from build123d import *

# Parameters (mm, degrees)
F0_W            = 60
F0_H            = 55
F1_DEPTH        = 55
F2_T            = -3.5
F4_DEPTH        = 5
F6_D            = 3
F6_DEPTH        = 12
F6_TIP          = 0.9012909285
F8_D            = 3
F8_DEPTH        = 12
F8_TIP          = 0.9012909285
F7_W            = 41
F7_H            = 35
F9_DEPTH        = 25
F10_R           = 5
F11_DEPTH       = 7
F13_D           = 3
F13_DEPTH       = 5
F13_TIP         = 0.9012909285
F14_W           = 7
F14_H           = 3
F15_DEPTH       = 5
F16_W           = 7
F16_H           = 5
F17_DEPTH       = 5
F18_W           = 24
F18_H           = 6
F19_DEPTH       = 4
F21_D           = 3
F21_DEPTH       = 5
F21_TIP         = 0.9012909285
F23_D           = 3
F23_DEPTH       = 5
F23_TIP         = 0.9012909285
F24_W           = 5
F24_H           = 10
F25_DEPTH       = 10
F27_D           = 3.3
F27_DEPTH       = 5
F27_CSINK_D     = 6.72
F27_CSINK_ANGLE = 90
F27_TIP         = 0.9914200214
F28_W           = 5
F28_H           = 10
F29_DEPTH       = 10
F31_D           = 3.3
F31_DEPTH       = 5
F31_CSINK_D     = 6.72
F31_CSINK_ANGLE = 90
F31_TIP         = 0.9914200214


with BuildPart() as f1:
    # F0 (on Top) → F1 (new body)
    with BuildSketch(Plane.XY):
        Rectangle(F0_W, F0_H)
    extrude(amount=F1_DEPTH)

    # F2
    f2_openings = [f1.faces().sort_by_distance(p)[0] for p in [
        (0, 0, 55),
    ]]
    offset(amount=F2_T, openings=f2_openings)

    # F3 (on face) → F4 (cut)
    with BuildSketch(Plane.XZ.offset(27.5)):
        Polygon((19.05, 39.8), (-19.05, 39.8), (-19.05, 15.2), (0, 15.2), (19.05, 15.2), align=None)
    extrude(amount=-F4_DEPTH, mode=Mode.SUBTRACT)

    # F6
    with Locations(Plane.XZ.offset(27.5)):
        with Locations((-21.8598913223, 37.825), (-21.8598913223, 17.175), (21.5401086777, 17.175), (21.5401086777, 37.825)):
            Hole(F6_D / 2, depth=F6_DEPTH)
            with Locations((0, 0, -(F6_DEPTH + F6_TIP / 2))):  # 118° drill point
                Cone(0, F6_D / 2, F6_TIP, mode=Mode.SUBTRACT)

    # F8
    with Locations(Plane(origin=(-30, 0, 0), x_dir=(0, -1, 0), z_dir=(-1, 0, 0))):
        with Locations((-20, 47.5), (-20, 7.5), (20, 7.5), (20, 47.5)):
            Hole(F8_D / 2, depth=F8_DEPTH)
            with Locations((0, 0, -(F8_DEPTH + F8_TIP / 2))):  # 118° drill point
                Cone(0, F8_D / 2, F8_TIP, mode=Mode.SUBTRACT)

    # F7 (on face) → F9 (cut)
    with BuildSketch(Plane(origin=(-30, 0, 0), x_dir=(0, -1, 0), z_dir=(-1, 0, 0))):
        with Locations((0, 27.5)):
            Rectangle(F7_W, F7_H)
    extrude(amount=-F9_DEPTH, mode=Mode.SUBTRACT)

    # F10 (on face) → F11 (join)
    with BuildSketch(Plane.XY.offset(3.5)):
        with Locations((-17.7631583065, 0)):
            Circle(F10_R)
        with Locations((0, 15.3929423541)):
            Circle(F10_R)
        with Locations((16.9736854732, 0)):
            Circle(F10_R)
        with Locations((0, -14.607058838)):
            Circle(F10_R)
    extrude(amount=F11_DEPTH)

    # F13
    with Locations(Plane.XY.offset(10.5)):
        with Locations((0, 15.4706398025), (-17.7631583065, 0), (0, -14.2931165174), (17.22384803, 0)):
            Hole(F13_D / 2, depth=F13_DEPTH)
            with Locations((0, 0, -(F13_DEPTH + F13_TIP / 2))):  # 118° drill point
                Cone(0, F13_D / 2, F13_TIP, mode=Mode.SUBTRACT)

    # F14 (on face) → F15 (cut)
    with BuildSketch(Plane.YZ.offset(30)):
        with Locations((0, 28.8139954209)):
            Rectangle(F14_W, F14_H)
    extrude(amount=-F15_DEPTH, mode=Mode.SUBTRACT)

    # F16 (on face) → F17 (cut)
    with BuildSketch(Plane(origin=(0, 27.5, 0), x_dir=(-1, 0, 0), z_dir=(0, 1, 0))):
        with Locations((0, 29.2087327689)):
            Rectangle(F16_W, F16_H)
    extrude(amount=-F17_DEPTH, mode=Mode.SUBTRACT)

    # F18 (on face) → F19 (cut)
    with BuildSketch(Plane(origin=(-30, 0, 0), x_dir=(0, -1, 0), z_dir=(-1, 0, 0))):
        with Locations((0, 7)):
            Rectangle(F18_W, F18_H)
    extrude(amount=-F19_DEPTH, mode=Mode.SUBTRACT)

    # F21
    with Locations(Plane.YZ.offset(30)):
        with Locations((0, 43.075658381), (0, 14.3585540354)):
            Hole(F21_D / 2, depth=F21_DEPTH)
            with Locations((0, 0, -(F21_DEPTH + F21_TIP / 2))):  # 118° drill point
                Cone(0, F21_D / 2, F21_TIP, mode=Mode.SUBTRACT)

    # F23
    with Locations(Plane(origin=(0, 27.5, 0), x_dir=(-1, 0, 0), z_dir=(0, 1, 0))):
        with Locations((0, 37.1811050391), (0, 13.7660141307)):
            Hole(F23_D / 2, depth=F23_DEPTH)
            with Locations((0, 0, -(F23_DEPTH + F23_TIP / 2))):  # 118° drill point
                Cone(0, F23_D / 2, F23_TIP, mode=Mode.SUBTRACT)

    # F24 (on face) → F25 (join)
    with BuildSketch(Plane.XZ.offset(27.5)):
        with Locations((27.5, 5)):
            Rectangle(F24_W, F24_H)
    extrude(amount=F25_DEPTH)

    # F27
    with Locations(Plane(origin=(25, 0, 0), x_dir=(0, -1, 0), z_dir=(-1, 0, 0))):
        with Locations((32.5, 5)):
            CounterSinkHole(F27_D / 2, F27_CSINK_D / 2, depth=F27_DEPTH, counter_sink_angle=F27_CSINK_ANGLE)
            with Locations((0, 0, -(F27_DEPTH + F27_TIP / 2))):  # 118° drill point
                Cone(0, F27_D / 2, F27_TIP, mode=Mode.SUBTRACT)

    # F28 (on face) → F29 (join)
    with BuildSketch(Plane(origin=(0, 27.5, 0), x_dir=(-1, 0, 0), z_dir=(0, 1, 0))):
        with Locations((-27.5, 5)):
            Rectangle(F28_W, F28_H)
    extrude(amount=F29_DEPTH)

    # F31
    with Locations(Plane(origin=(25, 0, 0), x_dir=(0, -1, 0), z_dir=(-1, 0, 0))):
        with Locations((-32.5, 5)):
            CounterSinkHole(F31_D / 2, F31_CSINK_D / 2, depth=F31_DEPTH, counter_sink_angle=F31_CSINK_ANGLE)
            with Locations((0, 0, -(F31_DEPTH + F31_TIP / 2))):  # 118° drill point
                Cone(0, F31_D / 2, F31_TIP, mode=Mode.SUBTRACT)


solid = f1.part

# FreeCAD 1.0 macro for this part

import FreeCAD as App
import Part
import Sketcher

V = App.Vector


def faces_at(feature, points):
    """Names of the faces that lie closest to the given points."""
    faces = feature.Shape.Faces
    near = lambda p: min(range(len(faces)), key=lambda i: faces[i].distToShape(Part.Vertex(*p))[0])
    return sorted({f"Face{near(p) + 1}" for p in points})

doc = App.newDocument("Part")
body = doc.addObject("PartDesign::Body", "Body")

# Sketch on XY plane
sketch1 = body.newObject("Sketcher::SketchObject", "Sketch")
sketch1.AttachmentSupport = (doc.getObject("XY_Plane"), [""])
sketch1.MapMode = "FlatFace"
sketch1.addGeometry([
    Part.LineSegment(V(-30, 27.5, 0), V(-30, -27.5, 0)),
    Part.LineSegment(V(-30, -27.5, 0), V(30, -27.5, 0)),
    Part.LineSegment(V(30, -27.5, 0), V(30, 27.5, 0)),
    Part.LineSegment(V(30, 27.5, 0), V(-30, 27.5, 0)),
], False)
sketch1.addConstraint([
    Sketcher.Constraint("Coincident", 0, 2, 1, 1),
    Sketcher.Constraint("Coincident", 1, 2, 2, 1),
    Sketcher.Constraint("Coincident", 2, 2, 3, 1),
    Sketcher.Constraint("Coincident", 3, 2, 0, 1),
    Sketcher.Constraint("Vertical", 0),
    Sketcher.Constraint("Horizontal", 1),
    Sketcher.Constraint("Vertical", 2),
    Sketcher.Constraint("Horizontal", 3),
    Sketcher.Constraint("Symmetric", 0, 2, 2, 2, -1, 1),
    Sketcher.Constraint("DistanceX", 1, 1, 1, 2, 60.0),
    Sketcher.Constraint("DistanceY", 0, 2, 0, 1, 55.0),
])
pad1 = body.newObject("PartDesign::Pad", "Pad")
pad1.Profile = sketch1
pad1.Length = 55
doc.recompute()

thickness = body.newObject("PartDesign::Thickness", "Thickness")
thickness.Base = (pad1, faces_at(pad1, [(0, 0, 55)]))
thickness.Value = 3.5
thickness.Reversed = True
thickness.Join = "Arc"

# Sketch on XZ plane
sketch2 = body.newObject("Sketcher::SketchObject", "Sketch001")
sketch2.AttachmentSupport = (doc.getObject("XZ_Plane"), [""])
sketch2.MapMode = "FlatFace"
sketch2.AttachmentOffset = App.Placement(V(0, 0, 27.5), App.Rotation())
sketch2.addGeometry([
    Part.LineSegment(V(19.05, 39.8, 0), V(-19.05, 39.8, 0)),
    Part.LineSegment(V(-19.05, 39.8, 0), V(-19.05, 15.2, 0)),
    Part.LineSegment(V(-19.05, 15.2, 0), V(19.05, 15.2, 0)),
    Part.LineSegment(V(19.05, 15.2, 0), V(19.05, 39.8, 0)),
], False)
sketch2.addConstraint([
    Sketcher.Constraint("Coincident", 0, 2, 1, 1),
    Sketcher.Constraint("Coincident", 1, 2, 2, 1),
    Sketcher.Constraint("Coincident", 2, 2, 3, 1),
    Sketcher.Constraint("Coincident", 3, 2, 0, 1),
    Sketcher.Constraint("Horizontal", 0),
    Sketcher.Constraint("Vertical", 1),
    Sketcher.Constraint("Horizontal", 2),
    Sketcher.Constraint("Vertical", 3),
    Sketcher.Constraint("DistanceX", 0, 2, 0, 1, 38.1),
    Sketcher.Constraint("DistanceY", 1, 2, 1, 1, 24.6),
    Sketcher.Constraint("DistanceY", -1, 1, 0, 2, 39.8),
    Sketcher.Constraint("DistanceX", 0, 2, -1, 1, 19.05),
])
pocket1 = body.newObject("PartDesign::Pocket", "Pocket")
pocket1.Profile = sketch2
pocket1.Length = 5

# Sketch on XZ plane
sketch3 = body.newObject("Sketcher::SketchObject", "Sketch002")
sketch3.AttachmentSupport = (doc.getObject("XZ_Plane"), [""])
sketch3.MapMode = "FlatFace"
sketch3.AttachmentOffset = App.Placement(V(0, 0, 27.5), App.Rotation())
sketch3.addGeometry([
    Part.Circle(V(-21.859891, 37.825, 0), V(0, 0, 1), 1.5),
    Part.Circle(V(-21.859891, 17.175, 0), V(0, 0, 1), 1.5),
    Part.Circle(V(21.540109, 17.175, 0), V(0, 0, 1), 1.5),
    Part.Circle(V(21.540109, 37.825, 0), V(0, 0, 1), 1.5),
], False)
sketch3.addConstraint([
    Sketcher.Constraint("Equal", 0, 1),
    Sketcher.Constraint("Equal", 1, 2),
    Sketcher.Constraint("Equal", 2, 3),
    Sketcher.Constraint("Horizontal", 1, 3, 2, 3),
    Sketcher.Constraint("Horizontal", 0, 3, 3, 3),
    Sketcher.Constraint("Vertical", 0, 3, 1, 3),
    Sketcher.Constraint("Vertical", 2, 3, 3, 3),
    Sketcher.Constraint("Diameter", 0, 3.0),
    Sketcher.Constraint("DistanceX", 1, 3, 2, 3, 43.4),
    Sketcher.Constraint("DistanceY", 1, 3, 0, 3, 20.65),
    Sketcher.Constraint("DistanceY", -1, 1, 0, 3, 37.825),
    Sketcher.Constraint("DistanceX", 0, 3, -1, 1, 21.859891),
])
doc.recompute()
hole = body.newObject("PartDesign::Hole", "Hole")
hole.Profile = sketch3
hole.ThreadType = "None"
hole.Diameter = 3
hole.DepthType = "Dimension"
hole.Depth = 12
hole.DrillPoint = "Angled"
hole.DrillPointAngle = 118

# Sketch on YZ plane
sketch4 = body.newObject("Sketcher::SketchObject", "Sketch003")
sketch4.AttachmentSupport = (doc.getObject("YZ_Plane"), [""])
sketch4.MapMode = "FlatFace"
sketch4.AttachmentOffset = App.Placement(V(0, 0, -30), App.Rotation())
sketch4.addGeometry([
    Part.Circle(V(20, 47.5, 0), V(0, 0, 1), 1.5),
    Part.Circle(V(20, 7.5, 0), V(0, 0, 1), 1.5),
    Part.Circle(V(-20, 7.5, 0), V(0, 0, 1), 1.5),
    Part.Circle(V(-20, 47.5, 0), V(0, 0, 1), 1.5),
], False)
sketch4.addConstraint([
    Sketcher.Constraint("Equal", 0, 1),
    Sketcher.Constraint("Equal", 1, 2),
    Sketcher.Constraint("Equal", 2, 3),
    Sketcher.Constraint("Symmetric", 1, 3, 2, 3, -2),
    Sketcher.Constraint("Symmetric", 0, 3, 3, 3, -2),
    Sketcher.Constraint("Vertical", 0, 3, 1, 3),
    Sketcher.Constraint("Diameter", 0, 3.0),
    Sketcher.Constraint("DistanceX", -1, 1, 0, 3, 20.0),
    Sketcher.Constraint("DistanceY", 1, 3, 0, 3, 40.0),
    Sketcher.Constraint("DistanceY", -1, 1, 0, 3, 47.5),
])
doc.recompute()
hole2 = body.newObject("PartDesign::Hole", "Hole001")
hole2.Profile = sketch4
hole2.ThreadType = "None"
hole2.Diameter = 3
hole2.DepthType = "Dimension"
hole2.Depth = 12
hole2.DrillPoint = "Angled"
hole2.DrillPointAngle = 118
hole2.Reversed = True

# Sketch on YZ plane
sketch5 = body.newObject("Sketcher::SketchObject", "Sketch004")
sketch5.AttachmentSupport = (doc.getObject("YZ_Plane"), [""])
sketch5.MapMode = "FlatFace"
sketch5.AttachmentOffset = App.Placement(V(0, 0, -30), App.Rotation())
sketch5.addGeometry([
    Part.LineSegment(V(20.5, 45, 0), V(20.5, 10, 0)),
    Part.LineSegment(V(20.5, 10, 0), V(-20.5, 10, 0)),
    Part.LineSegment(V(-20.5, 10, 0), V(-20.5, 45, 0)),
    Part.LineSegment(V(-20.5, 45, 0), V(20.5, 45, 0)),
], False)
sketch5.addConstraint([
    Sketcher.Constraint("Coincident", 0, 2, 1, 1),
    Sketcher.Constraint("Coincident", 1, 2, 2, 1),
    Sketcher.Constraint("Coincident", 2, 2, 3, 1),
    Sketcher.Constraint("Coincident", 3, 2, 0, 1),
    Sketcher.Constraint("Vertical", 0),
    Sketcher.Constraint("Horizontal", 1),
    Sketcher.Constraint("Vertical", 2),
    Sketcher.Constraint("Horizontal", 3),
    Sketcher.Constraint("DistanceX", 1, 2, 1, 1, 41.0),
    Sketcher.Constraint("DistanceY", 0, 2, 0, 1, 35.0),
    Sketcher.Constraint("DistanceY", -1, 1, 0, 2, 10.0),
    Sketcher.Constraint("DistanceX", -1, 1, 0, 2, 20.5),
])
pocket2 = body.newObject("PartDesign::Pocket", "Pocket001")
pocket2.Profile = sketch5
pocket2.Length = 25
pocket2.Reversed = True

# Sketch on XY plane
sketch6 = body.newObject("Sketcher::SketchObject", "Sketch005")
sketch6.AttachmentSupport = (doc.getObject("XY_Plane"), [""])
sketch6.MapMode = "FlatFace"
sketch6.AttachmentOffset = App.Placement(V(0, 0, 3.5), App.Rotation())
sketch6.addGeometry([
    Part.Circle(V(-17.763158, 0, 0), V(0, 0, 1), 5),
    Part.Circle(V(0, 15.392942, 0), V(0, 0, 1), 5),
    Part.Circle(V(16.973685, 0, 0), V(0, 0, 1), 5),
    Part.Circle(V(0, -14.607059, 0), V(0, 0, 1), 5),
], False)
sketch6.addConstraint([
    Sketcher.Constraint("Equal", 0, 1),
    Sketcher.Constraint("Equal", 1, 2),
    Sketcher.Constraint("Equal", 2, 3),
    Sketcher.Constraint("PointOnObject", 0, 3, -1),
    Sketcher.Constraint("PointOnObject", 1, 3, -2),
    Sketcher.Constraint("PointOnObject", 2, 3, -1),
    Sketcher.Constraint("PointOnObject", 3, 3, -2),
    Sketcher.Constraint("Diameter", 0, 10.0),
    Sketcher.Constraint("DistanceY", 3, 3, 1, 3, 30.000001),
    Sketcher.Constraint("DistanceX", 0, 3, -1, 1, 17.763158),
    Sketcher.Constraint("DistanceY", 3, 3, -1, 1, 14.607059),
    Sketcher.Constraint("DistanceX", -1, 1, 2, 3, 16.973685),
])
pad2 = body.newObject("PartDesign::Pad", "Pad001")
pad2.Profile = sketch6
pad2.Length = 7

# Sketch on XY plane
sketch7 = body.newObject("Sketcher::SketchObject", "Sketch006")
sketch7.AttachmentSupport = (doc.getObject("XY_Plane"), [""])
sketch7.MapMode = "FlatFace"
sketch7.AttachmentOffset = App.Placement(V(0, 0, 10.5), App.Rotation())
sketch7.addGeometry([
    Part.Circle(V(0, 15.47064, 0), V(0, 0, 1), 1.5),
    Part.Circle(V(-17.763158, 0, 0), V(0, 0, 1), 1.5),
    Part.Circle(V(0, -14.293117, 0), V(0, 0, 1), 1.5),
    Part.Circle(V(17.223848, 0, 0), V(0, 0, 1), 1.5),
], False)
sketch7.addConstraint([
    Sketcher.Constraint("Equal", 0, 1),
    Sketcher.Constraint("Equal", 1, 2),
    Sketcher.Constraint("Equal", 2, 3),
    Sketcher.Constraint("PointOnObject", 0, 3, -2),
    Sketcher.Constraint("PointOnObject", 1, 3, -1),
    Sketcher.Constraint("PointOnObject", 2, 3, -2),
    Sketcher.Constraint("PointOnObject", 3, 3, -1),
    Sketcher.Constraint("Diameter", 0, 3.0),
    Sketcher.Constraint("DistanceY", -1, 1, 0, 3, 15.47064),
    Sketcher.Constraint("DistanceX", 1, 3, -1, 1, 17.763158),
    Sketcher.Constraint("DistanceX", -1, 1, 3, 3, 17.223848),
    Sketcher.Constraint("DistanceY", 2, 3, -1, 1, 14.293117),
])
doc.recompute()
hole3 = body.newObject("PartDesign::Hole", "Hole002")
hole3.Profile = sketch7
hole3.ThreadType = "None"
hole3.Diameter = 3
hole3.DepthType = "Dimension"
hole3.Depth = 5
hole3.DrillPoint = "Angled"
hole3.DrillPointAngle = 118

# Sketch on YZ plane
sketch8 = body.newObject("Sketcher::SketchObject", "Sketch007")
sketch8.AttachmentSupport = (doc.getObject("YZ_Plane"), [""])
sketch8.MapMode = "FlatFace"
sketch8.AttachmentOffset = App.Placement(V(0, 0, 30), App.Rotation())
sketch8.addGeometry([
    Part.LineSegment(V(-3.5, 30.313995, 0), V(-3.5, 27.313995, 0)),
    Part.LineSegment(V(-3.5, 27.313995, 0), V(3.5, 27.313995, 0)),
    Part.LineSegment(V(3.5, 27.313995, 0), V(3.5, 30.313995, 0)),
    Part.LineSegment(V(3.5, 30.313995, 0), V(-3.5, 30.313995, 0)),
], False)
sketch8.addConstraint([
    Sketcher.Constraint("Coincident", 0, 2, 1, 1),
    Sketcher.Constraint("Coincident", 1, 2, 2, 1),
    Sketcher.Constraint("Coincident", 2, 2, 3, 1),
    Sketcher.Constraint("Coincident", 3, 2, 0, 1),
    Sketcher.Constraint("Vertical", 0),
    Sketcher.Constraint("Horizontal", 1),
    Sketcher.Constraint("Vertical", 2),
    Sketcher.Constraint("Horizontal", 3),
    Sketcher.Constraint("DistanceX", 1, 1, 1, 2, 7.0),
    Sketcher.Constraint("DistanceY", 0, 2, 0, 1, 3.0),
    Sketcher.Constraint("DistanceX", 0, 2, -1, 1, 3.5),
    Sketcher.Constraint("DistanceY", -1, 1, 0, 2, 27.313995),
])
pocket3 = body.newObject("PartDesign::Pocket", "Pocket002")
pocket3.Profile = sketch8
pocket3.Length = 5

# Sketch on XZ plane
sketch9 = body.newObject("Sketcher::SketchObject", "Sketch008")
sketch9.AttachmentSupport = (doc.getObject("XZ_Plane"), [""])
sketch9.MapMode = "FlatFace"
sketch9.AttachmentOffset = App.Placement(V(0, 0, -27.5), App.Rotation())
sketch9.addGeometry([
    Part.LineSegment(V(3.5, 31.708733, 0), V(3.5, 26.708733, 0)),
    Part.LineSegment(V(3.5, 26.708733, 0), V(-3.5, 26.708733, 0)),
    Part.LineSegment(V(-3.5, 26.708733, 0), V(-3.5, 31.708733, 0)),
    Part.LineSegment(V(-3.5, 31.708733, 0), V(3.5, 31.708733, 0)),
], False)
sketch9.addConstraint([
    Sketcher.Constraint("Coincident", 0, 2, 1, 1),
    Sketcher.Constraint("Coincident", 1, 2, 2, 1),
    Sketcher.Constraint("Coincident", 2, 2, 3, 1),
    Sketcher.Constraint("Coincident", 3, 2, 0, 1),
    Sketcher.Constraint("Vertical", 0),
    Sketcher.Constraint("Horizontal", 1),
    Sketcher.Constraint("Vertical", 2),
    Sketcher.Constraint("Horizontal", 3),
    Sketcher.Constraint("DistanceX", 1, 2, 1, 1, 7.0),
    Sketcher.Constraint("DistanceY", 0, 2, 0, 1, 5.0),
    Sketcher.Constraint("DistanceX", -1, 1, 0, 2, 3.5),
    Sketcher.Constraint("DistanceY", -1, 1, 0, 2, 26.708733),
])
pocket4 = body.newObject("PartDesign::Pocket", "Pocket003")
pocket4.Profile = sketch9
pocket4.Length = 5
pocket4.Reversed = True

# Sketch on YZ plane
sketch10 = body.newObject("Sketcher::SketchObject", "Sketch009")
sketch10.AttachmentSupport = (doc.getObject("YZ_Plane"), [""])
sketch10.MapMode = "FlatFace"
sketch10.AttachmentOffset = App.Placement(V(0, 0, -30), App.Rotation())
sketch10.addGeometry([
    Part.LineSegment(V(12, 10, 0), V(12, 4, 0)),
    Part.LineSegment(V(12, 4, 0), V(-12, 4, 0)),
    Part.LineSegment(V(-12, 4, 0), V(-12, 10, 0)),
    Part.LineSegment(V(-12, 10, 0), V(12, 10, 0)),
], False)
sketch10.addConstraint([
    Sketcher.Constraint("Coincident", 0, 2, 1, 1),
    Sketcher.Constraint("Coincident", 1, 2, 2, 1),
    Sketcher.Constraint("Coincident", 2, 2, 3, 1),
    Sketcher.Constraint("Coincident", 3, 2, 0, 1),
    Sketcher.Constraint("Vertical", 0),
    Sketcher.Constraint("Horizontal", 1),
    Sketcher.Constraint("Vertical", 2),
    Sketcher.Constraint("Horizontal", 3),
    Sketcher.Constraint("DistanceX", 1, 2, 1, 1, 24.0),
    Sketcher.Constraint("DistanceY", 0, 2, 0, 1, 6.0),
    Sketcher.Constraint("DistanceX", -1, 1, 0, 2, 12.0),
    Sketcher.Constraint("DistanceY", -1, 1, 0, 2, 4.0),
])
pocket5 = body.newObject("PartDesign::Pocket", "Pocket004")
pocket5.Profile = sketch10
pocket5.Length = 4
pocket5.Reversed = True

# Sketch on YZ plane
sketch11 = body.newObject("Sketcher::SketchObject", "Sketch010")
sketch11.AttachmentSupport = (doc.getObject("YZ_Plane"), [""])
sketch11.MapMode = "FlatFace"
sketch11.AttachmentOffset = App.Placement(V(0, 0, 30), App.Rotation())
sketch11.addGeometry([
    Part.Circle(V(0, 43.075658, 0), V(0, 0, 1), 1.5),
    Part.Circle(V(0, 14.358554, 0), V(0, 0, 1), 1.5),
], False)
sketch11.addConstraint([
    Sketcher.Constraint("Equal", 0, 1),
    Sketcher.Constraint("PointOnObject", 0, 3, -2),
    Sketcher.Constraint("PointOnObject", 1, 3, -2),
    Sketcher.Constraint("Diameter", 0, 3.0),
    Sketcher.Constraint("DistanceY", -1, 1, 0, 3, 43.075658),
    Sketcher.Constraint("DistanceY", -1, 1, 1, 3, 14.358554),
])
doc.recompute()
hole4 = body.newObject("PartDesign::Hole", "Hole003")
hole4.Profile = sketch11
hole4.ThreadType = "None"
hole4.Diameter = 3
hole4.DepthType = "Dimension"
hole4.Depth = 5
hole4.DrillPoint = "Angled"
hole4.DrillPointAngle = 118

# Sketch on XZ plane
sketch12 = body.newObject("Sketcher::SketchObject", "Sketch011")
sketch12.AttachmentSupport = (doc.getObject("XZ_Plane"), [""])
sketch12.MapMode = "FlatFace"
sketch12.AttachmentOffset = App.Placement(V(0, 0, -27.5), App.Rotation())
sketch12.addGeometry([
    Part.Circle(V(0, 37.181105, 0), V(0, 0, 1), 1.5),
    Part.Circle(V(0, 13.766014, 0), V(0, 0, 1), 1.5),
], False)
sketch12.addConstraint([
    Sketcher.Constraint("Equal", 0, 1),
    Sketcher.Constraint("PointOnObject", 0, 3, -2),
    Sketcher.Constraint("PointOnObject", 1, 3, -2),
    Sketcher.Constraint("Diameter", 0, 3.0),
    Sketcher.Constraint("DistanceY", 1, 3, 0, 3, 23.415091),
    Sketcher.Constraint("DistanceY", -1, 1, 0, 3, 37.181105),
])
doc.recompute()
hole5 = body.newObject("PartDesign::Hole", "Hole004")
hole5.Profile = sketch12
hole5.ThreadType = "None"
hole5.Diameter = 3
hole5.DepthType = "Dimension"
hole5.Depth = 5
hole5.DrillPoint = "Angled"
hole5.DrillPointAngle = 118
hole5.Reversed = True

# Sketch on XZ plane
sketch13 = body.newObject("Sketcher::SketchObject", "Sketch012")
sketch13.AttachmentSupport = (doc.getObject("XZ_Plane"), [""])
sketch13.MapMode = "FlatFace"
sketch13.AttachmentOffset = App.Placement(V(0, 0, 27.5), App.Rotation())
sketch13.addGeometry([
    Part.LineSegment(V(25, 10, 0), V(25, 0, 0)),
    Part.LineSegment(V(25, 0, 0), V(30, 0, 0)),
    Part.LineSegment(V(30, 0, 0), V(30, 10, 0)),
    Part.LineSegment(V(30, 10, 0), V(25, 10, 0)),
], False)
sketch13.addConstraint([
    Sketcher.Constraint("Coincident", 0, 2, 1, 1),
    Sketcher.Constraint("Coincident", 1, 2, 2, 1),
    Sketcher.Constraint("Coincident", 2, 2, 3, 1),
    Sketcher.Constraint("Coincident", 3, 2, 0, 1),
    Sketcher.Constraint("Vertical", 0),
    Sketcher.Constraint("Horizontal", 1),
    Sketcher.Constraint("Vertical", 2),
    Sketcher.Constraint("Horizontal", 3),
    Sketcher.Constraint("PointOnObject", 0, 2, -1),
    Sketcher.Constraint("DistanceX", 1, 1, 1, 2, 5.0),
    Sketcher.Constraint("DistanceY", 0, 2, 0, 1, 10.0),
    Sketcher.Constraint("DistanceX", -1, 1, 0, 2, 25.0),
])
pad3 = body.newObject("PartDesign::Pad", "Pad002")
pad3.Profile = sketch13
pad3.Length = 10

# Sketch on YZ plane
sketch14 = body.newObject("Sketcher::SketchObject", "Sketch013")
sketch14.AttachmentSupport = (doc.getObject("YZ_Plane"), [""])
sketch14.MapMode = "FlatFace"
sketch14.AttachmentOffset = App.Placement(V(0, 0, 25), App.Rotation())
sketch14.addGeometry(Part.Circle(V(-32.5, 5, 0), V(0, 0, 1), 1.65), False)
sketch14.addConstraint([
    Sketcher.Constraint("Diameter", 0, 3.3),
    Sketcher.Constraint("DistanceY", -1, 1, 0, 3, 5.0),
    Sketcher.Constraint("DistanceX", 0, 3, -1, 1, 32.5),
])
doc.recompute()
hole6 = body.newObject("PartDesign::Hole", "Hole005")
hole6.Profile = sketch14
hole6.ThreadType = "None"
hole6.Diameter = 3.3
hole6.DepthType = "Dimension"
hole6.Depth = 5
hole6.DrillPoint = "Angled"
hole6.DrillPointAngle = 118
hole6.HoleCutType = "Countersink"
hole6.HoleCutDiameter = 6.72
hole6.HoleCutCountersinkAngle = 90
hole6.Reversed = True

# Sketch on XZ plane
sketch15 = body.newObject("Sketcher::SketchObject", "Sketch014")
sketch15.AttachmentSupport = (doc.getObject("XZ_Plane"), [""])
sketch15.MapMode = "FlatFace"
sketch15.AttachmentOffset = App.Placement(V(0, 0, -27.5), App.Rotation())
sketch15.addGeometry([
    Part.LineSegment(V(30, 10, 0), V(30, 0, 0)),
    Part.LineSegment(V(30, 0, 0), V(25, 0, 0)),
    Part.LineSegment(V(25, 0, 0), V(25, 10, 0)),
    Part.LineSegment(V(25, 10, 0), V(30, 10, 0)),
], False)
sketch15.addConstraint([
    Sketcher.Constraint("Coincident", 0, 2, 1, 1),
    Sketcher.Constraint("Coincident", 1, 2, 2, 1),
    Sketcher.Constraint("Coincident", 2, 2, 3, 1),
    Sketcher.Constraint("Coincident", 3, 2, 0, 1),
    Sketcher.Constraint("Vertical", 0),
    Sketcher.Constraint("Horizontal", 1),
    Sketcher.Constraint("Vertical", 2),
    Sketcher.Constraint("Horizontal", 3),
    Sketcher.Constraint("PointOnObject", 0, 2, -1),
    Sketcher.Constraint("DistanceX", 1, 2, 1, 1, 5.0),
    Sketcher.Constraint("DistanceY", 0, 2, 0, 1, 10.0),
    Sketcher.Constraint("DistanceX", -1, 1, 0, 2, 30.0),
])
pad4 = body.newObject("PartDesign::Pad", "Pad003")
pad4.Profile = sketch15
pad4.Length = 10
pad4.Reversed = True

# Sketch on YZ plane
sketch16 = body.newObject("Sketcher::SketchObject", "Sketch015")
sketch16.AttachmentSupport = (doc.getObject("YZ_Plane"), [""])
sketch16.MapMode = "FlatFace"
sketch16.AttachmentOffset = App.Placement(V(0, 0, 25), App.Rotation())
sketch16.addGeometry(Part.Circle(V(32.5, 5, 0), V(0, 0, 1), 1.65), False)
sketch16.addConstraint([
    Sketcher.Constraint("Diameter", 0, 3.3),
    Sketcher.Constraint("DistanceY", -1, 1, 0, 3, 5.0),
    Sketcher.Constraint("DistanceX", -1, 1, 0, 3, 32.5),
])
doc.recompute()
hole7 = body.newObject("PartDesign::Hole", "Hole006")
hole7.Profile = sketch16
hole7.ThreadType = "None"
hole7.Diameter = 3.3
hole7.DepthType = "Dimension"
hole7.Depth = 5
hole7.DrillPoint = "Angled"
hole7.DrillPointAngle = 118
hole7.HoleCutType = "Countersink"
hole7.HoleCutDiameter = 6.72
hole7.HoleCutCountersinkAngle = 90
hole7.Reversed = True

doc.recompute()
